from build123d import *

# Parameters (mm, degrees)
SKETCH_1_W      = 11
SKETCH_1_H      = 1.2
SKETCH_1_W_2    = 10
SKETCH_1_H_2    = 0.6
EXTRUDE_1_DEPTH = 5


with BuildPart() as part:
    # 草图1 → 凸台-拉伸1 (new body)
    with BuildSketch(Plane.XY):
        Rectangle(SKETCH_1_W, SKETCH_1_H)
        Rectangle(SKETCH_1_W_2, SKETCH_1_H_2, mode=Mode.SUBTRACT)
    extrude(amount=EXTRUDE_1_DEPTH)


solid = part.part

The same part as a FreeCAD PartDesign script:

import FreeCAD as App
import Part
import Sketcher
from FreeCAD import Vector
Q = App.Units.Quantity

doc = App.newDocument("Part")
body = doc.addObject("PartDesign::Body", "Body")

sketch1 = doc.addObject("Sketcher::SketchObject", "Sketch")
body.addObject(sketch1)
sketch1.AttachmentSupport = (doc.XY_Plane, [""])
sketch1.MapMode = "FlatFace"
sketch1.addGeometry(Part.LineSegment(Vector(-5.5, 0.6, 0), Vector(-5.5, -0.6, 0)), False)
sketch1.addGeometry(Part.LineSegment(Vector(-5.5, -0.6, 0), Vector(5.5, -0.6, 0)), False)
sketch1.addGeometry(Part.LineSegment(Vector(5.5, -0.6, 0), Vector(5.5, 0.6, 0)), False)
sketch1.addGeometry(Part.LineSegment(Vector(5.5, 0.6, 0), Vector(-5.5, 0.6, 0)), False)
sketch1.addGeometry(Part.LineSegment(Vector(5, -0.3, 0), Vector(-5, -0.3, 0)), False)
sketch1.addGeometry(Part.LineSegment(Vector(-5, -0.3, 0), Vector(-5, 0.3, 0)), False)
sketch1.addGeometry(Part.LineSegment(Vector(-5, 0.3, 0), Vector(5, 0.3, 0)), False)
sketch1.addGeometry(Part.LineSegment(Vector(5, 0.3, 0), Vector(5, -0.3, 0)), False)
sketch1.addConstraint(Sketcher.Constraint("Coincident", 0, 2, 1, 1))
sketch1.addConstraint(Sketcher.Constraint("Coincident", 1, 2, 2, 1))
sketch1.addConstraint(Sketcher.Constraint("Coincident", 2, 2, 3, 1))
sketch1.addConstraint(Sketcher.Constraint("Coincident", 3, 2, 0, 1))
sketch1.addConstraint(Sketcher.Constraint("Coincident", 4, 2, 5, 1))
sketch1.addConstraint(Sketcher.Constraint("Coincident", 5, 2, 6, 1))
sketch1.addConstraint(Sketcher.Constraint("Coincident", 6, 2, 7, 1))
sketch1.addConstraint(Sketcher.Constraint("Coincident", 7, 2, 4, 1))
sketch1.addConstraint(Sketcher.Constraint("Vertical", 0))
sketch1.addConstraint(Sketcher.Constraint("Horizontal", 1))
sketch1.addConstraint(Sketcher.Constraint("Vertical", 2))
sketch1.addConstraint(Sketcher.Constraint("Horizontal", 3))
sketch1.addConstraint(Sketcher.Constraint("Horizontal", 4))
sketch1.addConstraint(Sketcher.Constraint("Vertical", 5))
sketch1.addConstraint(Sketcher.Constraint("Horizontal", 6))
sketch1.addConstraint(Sketcher.Constraint("Vertical", 7))
sketch1.addConstraint(Sketcher.Constraint("Symmetric", 0, 2, 2, 2, -1, 1))
sketch1.addConstraint(Sketcher.Constraint("Symmetric", 4, 2, 6, 2, -1, 1))
sketch1.addConstraint(Sketcher.Constraint("DistanceX", 1, 1, 1, 2, Q("11 mm")))
sketch1.addConstraint(Sketcher.Constraint("DistanceX", 4, 2, 4, 1, Q("10 mm")))
sketch1.addConstraint(Sketcher.Constraint("DistanceY", 0, 2, 0, 1, Q("1.2 mm")))
sketch1.addConstraint(Sketcher.Constraint("DistanceY", 5, 1, 5, 2, Q("0.6 mm")))
pad1 = doc.addObject("PartDesign::Pad", "Pad")
body.addObject(pad1)
pad1.Profile = sketch1
pad1.Length = 5

doc.recompute()
